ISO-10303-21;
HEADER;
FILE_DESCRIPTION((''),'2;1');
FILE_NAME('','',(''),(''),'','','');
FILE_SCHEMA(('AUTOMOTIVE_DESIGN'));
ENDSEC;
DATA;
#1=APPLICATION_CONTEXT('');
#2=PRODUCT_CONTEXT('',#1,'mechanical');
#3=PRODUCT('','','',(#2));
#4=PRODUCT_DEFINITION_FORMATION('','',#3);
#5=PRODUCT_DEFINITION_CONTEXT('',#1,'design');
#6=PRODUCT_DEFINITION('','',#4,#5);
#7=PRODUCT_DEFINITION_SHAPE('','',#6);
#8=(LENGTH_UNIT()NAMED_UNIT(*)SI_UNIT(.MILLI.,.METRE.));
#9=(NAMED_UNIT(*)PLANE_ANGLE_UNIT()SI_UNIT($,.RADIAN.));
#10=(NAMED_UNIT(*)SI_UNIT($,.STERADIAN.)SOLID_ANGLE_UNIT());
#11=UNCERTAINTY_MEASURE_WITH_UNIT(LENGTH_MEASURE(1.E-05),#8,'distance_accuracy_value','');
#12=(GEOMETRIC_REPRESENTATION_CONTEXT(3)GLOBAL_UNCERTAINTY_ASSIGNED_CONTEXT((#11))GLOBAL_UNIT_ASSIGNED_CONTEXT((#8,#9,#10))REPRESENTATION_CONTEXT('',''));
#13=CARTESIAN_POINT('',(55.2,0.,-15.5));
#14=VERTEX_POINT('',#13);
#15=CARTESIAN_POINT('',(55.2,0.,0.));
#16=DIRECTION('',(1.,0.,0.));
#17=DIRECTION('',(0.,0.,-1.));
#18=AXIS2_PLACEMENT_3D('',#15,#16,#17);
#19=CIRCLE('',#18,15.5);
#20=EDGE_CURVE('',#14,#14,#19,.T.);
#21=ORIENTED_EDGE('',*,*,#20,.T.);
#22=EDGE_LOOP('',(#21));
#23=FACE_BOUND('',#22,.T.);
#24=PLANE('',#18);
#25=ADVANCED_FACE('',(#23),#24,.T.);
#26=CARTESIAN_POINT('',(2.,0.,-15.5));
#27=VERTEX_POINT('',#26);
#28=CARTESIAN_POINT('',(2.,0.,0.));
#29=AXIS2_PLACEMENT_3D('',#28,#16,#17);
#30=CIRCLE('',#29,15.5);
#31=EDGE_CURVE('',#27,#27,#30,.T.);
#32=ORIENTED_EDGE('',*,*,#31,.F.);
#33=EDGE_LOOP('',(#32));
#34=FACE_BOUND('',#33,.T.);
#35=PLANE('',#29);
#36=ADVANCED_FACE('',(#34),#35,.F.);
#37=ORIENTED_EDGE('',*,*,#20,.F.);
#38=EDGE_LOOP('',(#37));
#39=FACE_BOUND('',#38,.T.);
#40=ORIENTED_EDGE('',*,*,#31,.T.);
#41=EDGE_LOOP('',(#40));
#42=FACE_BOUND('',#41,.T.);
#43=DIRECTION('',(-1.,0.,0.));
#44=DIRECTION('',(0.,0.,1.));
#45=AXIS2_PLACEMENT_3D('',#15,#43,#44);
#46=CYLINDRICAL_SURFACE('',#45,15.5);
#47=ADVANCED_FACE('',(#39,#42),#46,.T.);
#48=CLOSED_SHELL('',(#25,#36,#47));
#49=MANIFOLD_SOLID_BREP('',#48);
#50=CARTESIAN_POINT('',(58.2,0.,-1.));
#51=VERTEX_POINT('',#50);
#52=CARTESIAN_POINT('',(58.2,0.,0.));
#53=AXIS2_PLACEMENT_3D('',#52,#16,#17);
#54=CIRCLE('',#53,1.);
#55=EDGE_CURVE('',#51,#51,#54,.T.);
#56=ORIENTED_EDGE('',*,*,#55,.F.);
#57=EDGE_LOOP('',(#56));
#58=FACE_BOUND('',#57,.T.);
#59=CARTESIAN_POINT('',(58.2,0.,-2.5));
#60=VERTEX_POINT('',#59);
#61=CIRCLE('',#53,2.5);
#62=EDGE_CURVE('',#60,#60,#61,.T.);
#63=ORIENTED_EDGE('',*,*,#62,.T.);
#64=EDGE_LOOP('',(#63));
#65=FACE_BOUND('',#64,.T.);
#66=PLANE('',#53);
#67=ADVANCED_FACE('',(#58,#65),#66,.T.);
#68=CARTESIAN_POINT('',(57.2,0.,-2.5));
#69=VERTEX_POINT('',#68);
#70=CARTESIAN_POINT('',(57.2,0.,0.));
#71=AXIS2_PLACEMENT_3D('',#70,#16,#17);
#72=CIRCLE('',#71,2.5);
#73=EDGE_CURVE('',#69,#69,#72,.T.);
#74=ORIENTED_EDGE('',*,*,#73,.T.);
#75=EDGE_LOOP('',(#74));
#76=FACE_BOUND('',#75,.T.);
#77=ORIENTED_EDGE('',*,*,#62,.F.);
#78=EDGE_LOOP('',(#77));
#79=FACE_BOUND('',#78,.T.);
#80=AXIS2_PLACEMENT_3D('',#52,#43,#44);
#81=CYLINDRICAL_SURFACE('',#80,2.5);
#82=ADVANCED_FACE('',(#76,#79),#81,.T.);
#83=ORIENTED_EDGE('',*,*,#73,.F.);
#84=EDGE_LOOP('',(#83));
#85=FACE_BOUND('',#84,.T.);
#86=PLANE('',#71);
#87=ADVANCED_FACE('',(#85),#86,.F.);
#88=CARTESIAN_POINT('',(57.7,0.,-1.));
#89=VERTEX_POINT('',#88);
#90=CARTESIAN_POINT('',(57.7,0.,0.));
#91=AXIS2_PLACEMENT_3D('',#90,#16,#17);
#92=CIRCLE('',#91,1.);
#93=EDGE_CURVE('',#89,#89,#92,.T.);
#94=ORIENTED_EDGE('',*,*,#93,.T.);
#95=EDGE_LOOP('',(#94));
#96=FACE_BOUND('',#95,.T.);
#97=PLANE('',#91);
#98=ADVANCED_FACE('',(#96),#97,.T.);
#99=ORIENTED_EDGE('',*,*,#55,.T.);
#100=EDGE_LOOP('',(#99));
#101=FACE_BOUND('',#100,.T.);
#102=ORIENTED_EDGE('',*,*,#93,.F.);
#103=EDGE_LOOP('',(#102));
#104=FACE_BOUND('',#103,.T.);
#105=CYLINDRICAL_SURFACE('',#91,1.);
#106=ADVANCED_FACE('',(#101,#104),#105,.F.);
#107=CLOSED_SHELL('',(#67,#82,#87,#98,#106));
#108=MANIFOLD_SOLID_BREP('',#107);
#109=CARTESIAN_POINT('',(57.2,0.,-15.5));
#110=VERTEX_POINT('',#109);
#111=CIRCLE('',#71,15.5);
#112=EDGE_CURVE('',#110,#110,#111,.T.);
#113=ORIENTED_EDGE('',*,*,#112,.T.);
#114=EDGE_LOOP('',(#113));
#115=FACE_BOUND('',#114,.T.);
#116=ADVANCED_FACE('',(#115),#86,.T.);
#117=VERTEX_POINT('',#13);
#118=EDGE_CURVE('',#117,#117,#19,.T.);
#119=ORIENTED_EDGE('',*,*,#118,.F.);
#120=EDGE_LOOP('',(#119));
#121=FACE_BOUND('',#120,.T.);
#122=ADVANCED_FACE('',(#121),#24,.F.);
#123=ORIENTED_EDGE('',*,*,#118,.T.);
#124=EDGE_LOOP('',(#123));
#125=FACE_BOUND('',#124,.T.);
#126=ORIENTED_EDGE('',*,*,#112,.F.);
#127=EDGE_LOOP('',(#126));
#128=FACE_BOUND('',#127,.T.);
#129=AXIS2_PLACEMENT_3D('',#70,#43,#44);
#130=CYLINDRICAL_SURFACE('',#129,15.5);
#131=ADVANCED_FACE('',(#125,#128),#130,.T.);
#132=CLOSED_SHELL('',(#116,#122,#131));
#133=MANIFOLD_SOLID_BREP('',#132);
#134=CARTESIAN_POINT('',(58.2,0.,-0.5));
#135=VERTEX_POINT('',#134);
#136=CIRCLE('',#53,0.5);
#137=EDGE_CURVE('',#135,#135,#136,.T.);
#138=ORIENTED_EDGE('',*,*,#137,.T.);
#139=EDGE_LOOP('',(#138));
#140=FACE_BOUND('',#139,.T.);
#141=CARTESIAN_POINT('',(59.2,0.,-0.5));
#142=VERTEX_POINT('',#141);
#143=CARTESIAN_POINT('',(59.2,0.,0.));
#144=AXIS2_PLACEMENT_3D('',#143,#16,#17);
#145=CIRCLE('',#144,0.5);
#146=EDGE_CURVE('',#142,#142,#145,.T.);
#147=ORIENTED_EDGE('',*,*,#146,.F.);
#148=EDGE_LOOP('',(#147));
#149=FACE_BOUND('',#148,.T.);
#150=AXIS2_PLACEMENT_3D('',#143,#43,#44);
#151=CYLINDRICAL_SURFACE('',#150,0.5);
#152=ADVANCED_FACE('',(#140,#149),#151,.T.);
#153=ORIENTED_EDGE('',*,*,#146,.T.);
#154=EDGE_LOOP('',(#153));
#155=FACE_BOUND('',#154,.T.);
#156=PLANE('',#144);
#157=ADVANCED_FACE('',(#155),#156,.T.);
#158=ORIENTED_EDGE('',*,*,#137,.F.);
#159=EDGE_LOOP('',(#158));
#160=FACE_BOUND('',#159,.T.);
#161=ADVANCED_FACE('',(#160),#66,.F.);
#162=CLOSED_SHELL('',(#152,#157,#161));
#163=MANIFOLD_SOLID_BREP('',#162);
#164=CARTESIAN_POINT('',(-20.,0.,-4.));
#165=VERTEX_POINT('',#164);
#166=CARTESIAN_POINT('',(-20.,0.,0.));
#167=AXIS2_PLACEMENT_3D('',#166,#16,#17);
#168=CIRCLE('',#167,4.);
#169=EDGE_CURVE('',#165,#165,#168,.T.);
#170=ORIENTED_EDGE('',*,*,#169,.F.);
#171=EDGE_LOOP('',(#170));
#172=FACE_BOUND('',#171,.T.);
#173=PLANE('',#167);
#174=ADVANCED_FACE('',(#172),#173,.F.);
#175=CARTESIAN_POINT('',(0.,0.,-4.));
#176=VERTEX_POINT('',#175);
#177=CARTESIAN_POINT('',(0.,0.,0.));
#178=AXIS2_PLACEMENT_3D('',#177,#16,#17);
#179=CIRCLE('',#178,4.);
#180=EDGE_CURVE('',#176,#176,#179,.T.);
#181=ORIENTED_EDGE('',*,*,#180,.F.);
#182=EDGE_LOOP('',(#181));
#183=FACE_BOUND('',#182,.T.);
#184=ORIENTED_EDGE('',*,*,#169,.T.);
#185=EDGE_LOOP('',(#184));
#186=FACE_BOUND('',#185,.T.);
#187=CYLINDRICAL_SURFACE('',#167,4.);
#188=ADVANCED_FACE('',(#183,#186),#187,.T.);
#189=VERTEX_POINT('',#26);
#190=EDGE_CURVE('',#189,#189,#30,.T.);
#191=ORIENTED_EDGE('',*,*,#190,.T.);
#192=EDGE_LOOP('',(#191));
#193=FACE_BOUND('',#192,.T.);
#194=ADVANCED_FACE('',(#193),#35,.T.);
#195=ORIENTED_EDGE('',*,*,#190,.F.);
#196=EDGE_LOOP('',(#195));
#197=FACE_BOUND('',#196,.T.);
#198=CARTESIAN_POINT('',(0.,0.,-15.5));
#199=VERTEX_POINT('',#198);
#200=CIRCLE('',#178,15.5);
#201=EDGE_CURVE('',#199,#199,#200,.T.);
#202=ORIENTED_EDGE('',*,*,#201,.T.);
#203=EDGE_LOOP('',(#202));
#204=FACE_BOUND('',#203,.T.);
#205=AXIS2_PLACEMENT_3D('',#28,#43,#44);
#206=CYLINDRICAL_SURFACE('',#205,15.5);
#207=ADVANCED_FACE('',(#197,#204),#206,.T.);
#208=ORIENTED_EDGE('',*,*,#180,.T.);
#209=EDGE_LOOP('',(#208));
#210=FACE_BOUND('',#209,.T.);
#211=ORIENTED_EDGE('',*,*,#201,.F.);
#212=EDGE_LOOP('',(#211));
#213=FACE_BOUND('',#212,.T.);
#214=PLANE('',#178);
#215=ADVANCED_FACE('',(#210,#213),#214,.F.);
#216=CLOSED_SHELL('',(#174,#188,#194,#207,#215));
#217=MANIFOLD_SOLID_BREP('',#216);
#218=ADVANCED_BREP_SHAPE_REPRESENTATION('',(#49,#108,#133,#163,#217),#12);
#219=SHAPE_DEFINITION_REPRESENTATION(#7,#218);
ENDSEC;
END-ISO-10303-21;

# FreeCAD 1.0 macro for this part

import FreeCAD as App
import Part
import Sketcher
from FreeCAD import Vector
Q = App.Units.Quantity

doc = App.newDocument("Part")
body = doc.addObject("PartDesign::Body", "Body")

# Sketch on YZ plane
sketch1 = body.newObject("Sketcher::SketchObject", "Sketch")
sketch1.AttachmentSupport = (doc.getObject("YZ_Plane"), [""])
sketch1.MapMode = "FlatFace"
sketch1.addGeometry(Part.Circle(Vector(0, 0, 0), Vector(0, 0, 1), 16), False)
sketch1.addConstraint([
    Sketcher.Constraint("Coincident", 0, 3, -1, 1),
    Sketcher.Constraint("Diameter", 0, Q("31 mm")),
])
pad1 = body.newObject("PartDesign::Pad", "Pad")
pad1.Profile = sketch1
pad1.Length = 2

# Sketch on YZ plane
sketch2 = body.newObject("Sketcher::SketchObject", "Sketch001")
sketch2.AttachmentSupport = (doc.getObject("YZ_Plane"), [""])
sketch2.MapMode = "FlatFace"
sketch2.addGeometry(Part.Circle(Vector(0, 0, 0), Vector(0, 0, 1), 4), False)
sketch2.addConstraint([
    Sketcher.Constraint("Coincident", 0, 3, -1, 1),
    Sketcher.Constraint("Diameter", 0, Q("8 mm")),
])
pad2 = body.newObject("PartDesign::Pad", "Pad001")
pad2.Profile = sketch2
pad2.Length = 20
pad2.Reversed = True
body2 = doc.addObject("PartDesign::Body", "Body001")

# Sketch on YZ plane
sketch3 = body2.newObject("Sketcher::SketchObject", "Sketch002")
sketch3.AttachmentSupport = (doc.getObject("YZ_Plane001"), [""])
sketch3.MapMode = "FlatFace"
sketch3.AttachmentOffset = App.Placement(Vector(0, 0, 2), App.Rotation())
sketch3.addGeometry(Part.Circle(Vector(0, 0, 0), Vector(0, 0, 1), 16), False)
sketch3.addConstraint([
    Sketcher.Constraint("Coincident", 0, 3, -1, 1),
    Sketcher.Constraint("Diameter", 0, Q("31 mm")),
])
pad3 = body2.newObject("PartDesign::Pad", "Pad002")
pad3.Profile = sketch3
pad3.Length = 53.2
body3 = doc.addObject("PartDesign::Body", "Body002")

# Sketch on YZ plane
sketch4 = body3.newObject("Sketcher::SketchObject", "Sketch003")
sketch4.AttachmentSupport = (doc.getObject("YZ_Plane002"), [""])
sketch4.MapMode = "FlatFace"
sketch4.AttachmentOffset = App.Placement(Vector(0, 0, 55.2), App.Rotation())
sketch4.addGeometry(Part.Circle(Vector(0, 0, 0), Vector(0, 0, 1), 16), False)
sketch4.addConstraint([
    Sketcher.Constraint("Coincident", 0, 3, -1, 1),
    Sketcher.Constraint("Diameter", 0, Q("31 mm")),
])
pad4 = body3.newObject("PartDesign::Pad", "Pad003")
pad4.Profile = sketch4
pad4.Length = 2
body4 = doc.addObject("PartDesign::Body", "Body003")

# Sketch on YZ plane
sketch5 = body4.newObject("Sketcher::SketchObject", "Sketch004")
sketch5.AttachmentSupport = (doc.getObject("YZ_Plane003"), [""])
sketch5.MapMode = "FlatFace"
sketch5.AttachmentOffset = App.Placement(Vector(0, 0, 57.2), App.Rotation())
sketch5.addGeometry(Part.Circle(Vector(0, 0, 0), Vector(0, 0, 1), 2.5), False)
sketch5.addConstraint([
    Sketcher.Constraint("Coincident", 0, 3, -1, 1),
    Sketcher.Constraint("Diameter", 0, Q("5 mm")),
])
pad5 = body4.newObject("PartDesign::Pad", "Pad004")
pad5.Profile = sketch5
pad5.Length = 1

# Sketch on YZ plane
sketch6 = body4.newObject("Sketcher::SketchObject", "Sketch005")
sketch6.AttachmentSupport = (doc.getObject("YZ_Plane003"), [""])
sketch6.MapMode = "FlatFace"
sketch6.AttachmentOffset = App.Placement(Vector(0, 0, 58.2), App.Rotation())
sketch6.addGeometry(Part.Circle(Vector(0, 0, 0), Vector(0, 0, 1), 1), False)
sketch6.addConstraint([
    Sketcher.Constraint("Coincident", 0, 3, -1, 1),
    Sketcher.Constraint("Diameter", 0, Q("2 mm")),
])
pocket1 = body4.newObject("PartDesign::Pocket", "Pocket")
pocket1.Profile = sketch6
pocket1.Length = 0.5
body5 = doc.addObject("PartDesign::Body", "Body004")

# Sketch on YZ plane
sketch7 = body5.newObject("Sketcher::SketchObject", "Sketch006")
sketch7.AttachmentSupport = (doc.getObject("YZ_Plane004"), [""])
sketch7.MapMode = "FlatFace"
sketch7.AttachmentOffset = App.Placement(Vector(0, 0, 58.2), App.Rotation())
sketch7.addGeometry(Part.Circle(Vector(0, 0, 0), Vector(0, 0, 1), 0.5), False)
sketch7.addConstraint([
    Sketcher.Constraint("Coincident", 0, 3, -1, 1),
    Sketcher.Constraint("Diameter", 0, Q("1 mm")),
])
pad6 = body5.newObject("PartDesign::Pad", "Pad005")
pad6.Profile = sketch7
pad6.Length = 1

doc.recompute()
